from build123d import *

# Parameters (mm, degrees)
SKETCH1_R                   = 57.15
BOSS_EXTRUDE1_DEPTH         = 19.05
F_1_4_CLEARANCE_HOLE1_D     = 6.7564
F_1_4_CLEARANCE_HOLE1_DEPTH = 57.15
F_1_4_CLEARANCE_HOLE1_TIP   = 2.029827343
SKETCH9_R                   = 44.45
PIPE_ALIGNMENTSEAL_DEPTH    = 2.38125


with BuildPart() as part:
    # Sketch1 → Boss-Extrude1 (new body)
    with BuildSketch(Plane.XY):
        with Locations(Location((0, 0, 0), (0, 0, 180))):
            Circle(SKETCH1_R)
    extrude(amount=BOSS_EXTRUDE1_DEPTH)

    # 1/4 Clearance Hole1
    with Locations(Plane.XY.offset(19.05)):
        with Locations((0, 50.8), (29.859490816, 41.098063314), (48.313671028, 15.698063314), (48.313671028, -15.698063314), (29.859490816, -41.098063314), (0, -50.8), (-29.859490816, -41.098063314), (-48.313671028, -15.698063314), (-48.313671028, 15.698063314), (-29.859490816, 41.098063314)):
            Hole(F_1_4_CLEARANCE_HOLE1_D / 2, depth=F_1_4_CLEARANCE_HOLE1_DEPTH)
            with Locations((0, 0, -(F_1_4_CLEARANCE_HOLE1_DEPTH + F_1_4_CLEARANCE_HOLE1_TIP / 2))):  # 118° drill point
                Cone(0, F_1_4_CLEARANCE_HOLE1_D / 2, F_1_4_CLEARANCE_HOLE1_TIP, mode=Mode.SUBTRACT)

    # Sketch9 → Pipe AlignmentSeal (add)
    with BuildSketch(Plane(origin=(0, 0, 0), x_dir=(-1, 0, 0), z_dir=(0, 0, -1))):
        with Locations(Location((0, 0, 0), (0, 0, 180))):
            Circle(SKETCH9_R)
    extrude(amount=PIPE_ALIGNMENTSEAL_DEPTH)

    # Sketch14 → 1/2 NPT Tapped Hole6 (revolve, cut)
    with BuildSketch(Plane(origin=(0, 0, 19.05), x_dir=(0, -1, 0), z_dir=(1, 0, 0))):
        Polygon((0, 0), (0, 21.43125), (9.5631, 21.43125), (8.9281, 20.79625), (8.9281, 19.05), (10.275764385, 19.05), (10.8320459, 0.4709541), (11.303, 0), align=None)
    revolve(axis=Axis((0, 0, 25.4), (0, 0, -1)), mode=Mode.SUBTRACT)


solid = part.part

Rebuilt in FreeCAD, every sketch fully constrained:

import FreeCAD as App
import Part
import Sketcher

V = App.Vector
Q = App.Units.Quantity


def add_polygon(sketch, points):
    """Adds a closed chain of lines whose ends are joined by coincident constraints."""
    first, n = sketch.GeometryCount, len(points)
    for a, b in zip(points, points[1:] + points[:1]):
        sketch.addGeometry(Part.LineSegment(App.Vector(*a, 0), App.Vector(*b, 0)), False)
    for i in range(n):
        sketch.addConstraint(Sketcher.Constraint("Coincident", first + i, 2, first + (i + 1) % n, 1))

doc = App.newDocument("Part")
body = doc.addObject("PartDesign::Body", "Body")

# Sketch on XY plane
sketch1 = doc.addObject("Sketcher::SketchObject", "Sketch")
body.addObject(sketch1)
sketch1.AttachmentSupport = (doc.XY_Plane, [""])
sketch1.MapMode = "FlatFace"
sketch1.addGeometry(Part.Circle(V(0, 0, 0), V(0, 0, 1), 57), False)
sketch1.addConstraint([
    Sketcher.Constraint("Coincident", 0, 3, -1, 1),
    Sketcher.Constraint("Diameter", 0, Q("4.5 in")),
])
pad1 = doc.addObject("PartDesign::Pad", "Pad")
body.addObject(pad1)
pad1.Profile = sketch1
pad1.Length = Q("0.75 in")

# Sketch on XY plane
sketch2 = doc.addObject("Sketcher::SketchObject", "Sketch001")
body.addObject(sketch2)
sketch2.AttachmentSupport = (doc.XY_Plane, [""])
sketch2.MapMode = "FlatFace"
sketch2.AttachmentOffset = App.Placement(V(0, 0, 0.75 * 25.4), App.Rotation())
sketch2.addGeometry([
    Part.Circle(V(0, 50.8, 0), V(0, 0, 1), 3.4),  # 0
    Part.Circle(V(29.9, 41.1, 0), V(0, 0, 1), 3.4),  # 1
    Part.Circle(V(48.3, 15.7, 0), V(0, 0, 1), 3.4),  # 2
    Part.Circle(V(48.3, -15.7, 0), V(0, 0, 1), 3.4),  # 3
    Part.Circle(V(29.9, -41.1, 0), V(0, 0, 1), 3.4),  # 4
    Part.Circle(V(0, -50.8, 0), V(0, 0, 1), 3.4),  # 5
    Part.Circle(V(-29.9, -41.1, 0), V(0, 0, 1), 3.4),  # 6
    Part.Circle(V(-48.3, -15.7, 0), V(0, 0, 1), 3.4),  # 7
    Part.Circle(V(-48.3, 15.7, 0), V(0, 0, 1), 3.4),  # 8
    Part.Circle(V(-29.9, 41.1, 0), V(0, 0, 1), 3.4),  # 9
], False)
sketch2.addConstraint([
    Sketcher.Constraint("Equal", 0, 1),
    Sketcher.Constraint("Equal", 1, 2),
    Sketcher.Constraint("Equal", 2, 3),
    Sketcher.Constraint("Equal", 3, 4),
    Sketcher.Constraint("Equal", 4, 5),
    Sketcher.Constraint("Equal", 5, 6),
    Sketcher.Constraint("Equal", 6, 7),
    Sketcher.Constraint("Equal", 7, 8),
    Sketcher.Constraint("Equal", 8, 9),
    Sketcher.Constraint("Symmetric", 0, 3, 5, 3, -1, 1),
    Sketcher.Constraint("Symmetric", 1, 3, 6, 3, -1, 1),
    Sketcher.Constraint("Symmetric", 2, 3, 7, 3, -1, 1),
    Sketcher.Constraint("Symmetric", 3, 3, 8, 3, -1, 1),
    Sketcher.Constraint("Symmetric", 4, 3, 9, 3, -1, 1),
    Sketcher.Constraint("Symmetric", 4, 3, 6, 3, -2),
    Sketcher.Constraint("Symmetric", 3, 3, 7, 3, -2),
    Sketcher.Constraint("PointOnObject", 0, 3, -2),
    Sketcher.Constraint("Diameter", 0, Q("0.266 in")),
    Sketcher.Constraint("DistanceY", -1, 1, 0, 3, Q("2 in")),
    Sketcher.Constraint("DistanceY", 2, 3, 1, 3, Q("1 in")),
    Sketcher.Constraint("DistanceX", -1, 1, 1, 3, Q("29.859491 mm")),
    Sketcher.Constraint("DistanceX", -1, 1, 2, 3, Q("48.313671 mm")),
    Sketcher.Constraint("DistanceY", -1, 1, 1, 3, Q("41.098063 mm")),
])
doc.recompute()
hole = doc.addObject("PartDesign::Hole", "Hole")
body.addObject(hole)
hole.Profile = sketch2
hole.ThreadType = "None"
hole.Diameter = Q("0.266 in")
hole.DepthType = "Dimension"
hole.Depth = Q("2.25 in")
hole.DrillPoint = "Angled"
hole.DrillPointAngle = 118

# Sketch on XY plane
sketch3 = doc.addObject("Sketcher::SketchObject", "Sketch002")
body.addObject(sketch3)
sketch3.AttachmentSupport = (doc.XY_Plane, [""])
sketch3.MapMode = "FlatFace"
sketch3.addGeometry(Part.Circle(V(0, 0, 0), V(0, 0, 1), 44), False)
sketch3.addConstraint([
    Sketcher.Constraint("Coincident", 0, 3, -1, 1),
    Sketcher.Constraint("Diameter", 0, Q("3.5 in")),
])
pad2 = doc.addObject("PartDesign::Pad", "Pad001")
body.addObject(pad2)
pad2.Profile = sketch3
pad2.Length = Q("0.09375 in")
pad2.Reversed = True

# Sketch on YZ plane
sketch4 = doc.addObject("Sketcher::SketchObject", "Sketch003")
body.addObject(sketch4)
sketch4.AttachmentSupport = (doc.YZ_Plane, [""])
sketch4.MapMode = "FlatFace"
add_polygon(sketch4, [(0, -2.4), (0, 19.1), (-11.3, 19.1), (-10.8, 18.6), (-10.3, 0), (-8.9, 0), (-8.9, -1.7), (-9.6, -2.4)])  # lines 0-7
sketch4.addConstraint([
    Sketcher.Constraint("Vertical", 0),
    Sketcher.Constraint("Horizontal", 1),
    Sketcher.Constraint("Horizontal", 4),
    Sketcher.Constraint("Vertical", 5),
    Sketcher.Constraint("Horizontal", 7),
    Sketcher.Constraint("PointOnObject", 0, 2, -2),
    Sketcher.Constraint("PointOnObject", 3, 2, -1),
    Sketcher.Constraint("Perpendicular", 2, 6),
    Sketcher.Constraint("Angle", 2, Q("-45 deg")),
    Sketcher.Constraint("DistanceX", 1, 2, 1, 1, Q("0.445 in")),
    Sketcher.Constraint("DistanceY", 0, 1, 0, 2, Q("0.84375 in")),
    Sketcher.Constraint("DistanceY", -1, 1, 0, 2, Q("0.75 in")),
    Sketcher.Constraint("DistanceX", 7, 1, 7, 2, Q("0.3765 in")),
    Sketcher.Constraint("DistanceX", 6, 2, 5, 2, Q("0.025 in")),
    Sketcher.Constraint("Distance", 2, Q("0.66603 mm")),
    Sketcher.Constraint("Distance", 3, Q("18.587372 mm")),
])
groove = doc.addObject("PartDesign::Groove", "Groove")
body.addObject(groove)
groove.Profile = sketch4
groove.ReferenceAxis = (sketch4, ["V_Axis"])
groove.Angle = 360

doc.recompute()
